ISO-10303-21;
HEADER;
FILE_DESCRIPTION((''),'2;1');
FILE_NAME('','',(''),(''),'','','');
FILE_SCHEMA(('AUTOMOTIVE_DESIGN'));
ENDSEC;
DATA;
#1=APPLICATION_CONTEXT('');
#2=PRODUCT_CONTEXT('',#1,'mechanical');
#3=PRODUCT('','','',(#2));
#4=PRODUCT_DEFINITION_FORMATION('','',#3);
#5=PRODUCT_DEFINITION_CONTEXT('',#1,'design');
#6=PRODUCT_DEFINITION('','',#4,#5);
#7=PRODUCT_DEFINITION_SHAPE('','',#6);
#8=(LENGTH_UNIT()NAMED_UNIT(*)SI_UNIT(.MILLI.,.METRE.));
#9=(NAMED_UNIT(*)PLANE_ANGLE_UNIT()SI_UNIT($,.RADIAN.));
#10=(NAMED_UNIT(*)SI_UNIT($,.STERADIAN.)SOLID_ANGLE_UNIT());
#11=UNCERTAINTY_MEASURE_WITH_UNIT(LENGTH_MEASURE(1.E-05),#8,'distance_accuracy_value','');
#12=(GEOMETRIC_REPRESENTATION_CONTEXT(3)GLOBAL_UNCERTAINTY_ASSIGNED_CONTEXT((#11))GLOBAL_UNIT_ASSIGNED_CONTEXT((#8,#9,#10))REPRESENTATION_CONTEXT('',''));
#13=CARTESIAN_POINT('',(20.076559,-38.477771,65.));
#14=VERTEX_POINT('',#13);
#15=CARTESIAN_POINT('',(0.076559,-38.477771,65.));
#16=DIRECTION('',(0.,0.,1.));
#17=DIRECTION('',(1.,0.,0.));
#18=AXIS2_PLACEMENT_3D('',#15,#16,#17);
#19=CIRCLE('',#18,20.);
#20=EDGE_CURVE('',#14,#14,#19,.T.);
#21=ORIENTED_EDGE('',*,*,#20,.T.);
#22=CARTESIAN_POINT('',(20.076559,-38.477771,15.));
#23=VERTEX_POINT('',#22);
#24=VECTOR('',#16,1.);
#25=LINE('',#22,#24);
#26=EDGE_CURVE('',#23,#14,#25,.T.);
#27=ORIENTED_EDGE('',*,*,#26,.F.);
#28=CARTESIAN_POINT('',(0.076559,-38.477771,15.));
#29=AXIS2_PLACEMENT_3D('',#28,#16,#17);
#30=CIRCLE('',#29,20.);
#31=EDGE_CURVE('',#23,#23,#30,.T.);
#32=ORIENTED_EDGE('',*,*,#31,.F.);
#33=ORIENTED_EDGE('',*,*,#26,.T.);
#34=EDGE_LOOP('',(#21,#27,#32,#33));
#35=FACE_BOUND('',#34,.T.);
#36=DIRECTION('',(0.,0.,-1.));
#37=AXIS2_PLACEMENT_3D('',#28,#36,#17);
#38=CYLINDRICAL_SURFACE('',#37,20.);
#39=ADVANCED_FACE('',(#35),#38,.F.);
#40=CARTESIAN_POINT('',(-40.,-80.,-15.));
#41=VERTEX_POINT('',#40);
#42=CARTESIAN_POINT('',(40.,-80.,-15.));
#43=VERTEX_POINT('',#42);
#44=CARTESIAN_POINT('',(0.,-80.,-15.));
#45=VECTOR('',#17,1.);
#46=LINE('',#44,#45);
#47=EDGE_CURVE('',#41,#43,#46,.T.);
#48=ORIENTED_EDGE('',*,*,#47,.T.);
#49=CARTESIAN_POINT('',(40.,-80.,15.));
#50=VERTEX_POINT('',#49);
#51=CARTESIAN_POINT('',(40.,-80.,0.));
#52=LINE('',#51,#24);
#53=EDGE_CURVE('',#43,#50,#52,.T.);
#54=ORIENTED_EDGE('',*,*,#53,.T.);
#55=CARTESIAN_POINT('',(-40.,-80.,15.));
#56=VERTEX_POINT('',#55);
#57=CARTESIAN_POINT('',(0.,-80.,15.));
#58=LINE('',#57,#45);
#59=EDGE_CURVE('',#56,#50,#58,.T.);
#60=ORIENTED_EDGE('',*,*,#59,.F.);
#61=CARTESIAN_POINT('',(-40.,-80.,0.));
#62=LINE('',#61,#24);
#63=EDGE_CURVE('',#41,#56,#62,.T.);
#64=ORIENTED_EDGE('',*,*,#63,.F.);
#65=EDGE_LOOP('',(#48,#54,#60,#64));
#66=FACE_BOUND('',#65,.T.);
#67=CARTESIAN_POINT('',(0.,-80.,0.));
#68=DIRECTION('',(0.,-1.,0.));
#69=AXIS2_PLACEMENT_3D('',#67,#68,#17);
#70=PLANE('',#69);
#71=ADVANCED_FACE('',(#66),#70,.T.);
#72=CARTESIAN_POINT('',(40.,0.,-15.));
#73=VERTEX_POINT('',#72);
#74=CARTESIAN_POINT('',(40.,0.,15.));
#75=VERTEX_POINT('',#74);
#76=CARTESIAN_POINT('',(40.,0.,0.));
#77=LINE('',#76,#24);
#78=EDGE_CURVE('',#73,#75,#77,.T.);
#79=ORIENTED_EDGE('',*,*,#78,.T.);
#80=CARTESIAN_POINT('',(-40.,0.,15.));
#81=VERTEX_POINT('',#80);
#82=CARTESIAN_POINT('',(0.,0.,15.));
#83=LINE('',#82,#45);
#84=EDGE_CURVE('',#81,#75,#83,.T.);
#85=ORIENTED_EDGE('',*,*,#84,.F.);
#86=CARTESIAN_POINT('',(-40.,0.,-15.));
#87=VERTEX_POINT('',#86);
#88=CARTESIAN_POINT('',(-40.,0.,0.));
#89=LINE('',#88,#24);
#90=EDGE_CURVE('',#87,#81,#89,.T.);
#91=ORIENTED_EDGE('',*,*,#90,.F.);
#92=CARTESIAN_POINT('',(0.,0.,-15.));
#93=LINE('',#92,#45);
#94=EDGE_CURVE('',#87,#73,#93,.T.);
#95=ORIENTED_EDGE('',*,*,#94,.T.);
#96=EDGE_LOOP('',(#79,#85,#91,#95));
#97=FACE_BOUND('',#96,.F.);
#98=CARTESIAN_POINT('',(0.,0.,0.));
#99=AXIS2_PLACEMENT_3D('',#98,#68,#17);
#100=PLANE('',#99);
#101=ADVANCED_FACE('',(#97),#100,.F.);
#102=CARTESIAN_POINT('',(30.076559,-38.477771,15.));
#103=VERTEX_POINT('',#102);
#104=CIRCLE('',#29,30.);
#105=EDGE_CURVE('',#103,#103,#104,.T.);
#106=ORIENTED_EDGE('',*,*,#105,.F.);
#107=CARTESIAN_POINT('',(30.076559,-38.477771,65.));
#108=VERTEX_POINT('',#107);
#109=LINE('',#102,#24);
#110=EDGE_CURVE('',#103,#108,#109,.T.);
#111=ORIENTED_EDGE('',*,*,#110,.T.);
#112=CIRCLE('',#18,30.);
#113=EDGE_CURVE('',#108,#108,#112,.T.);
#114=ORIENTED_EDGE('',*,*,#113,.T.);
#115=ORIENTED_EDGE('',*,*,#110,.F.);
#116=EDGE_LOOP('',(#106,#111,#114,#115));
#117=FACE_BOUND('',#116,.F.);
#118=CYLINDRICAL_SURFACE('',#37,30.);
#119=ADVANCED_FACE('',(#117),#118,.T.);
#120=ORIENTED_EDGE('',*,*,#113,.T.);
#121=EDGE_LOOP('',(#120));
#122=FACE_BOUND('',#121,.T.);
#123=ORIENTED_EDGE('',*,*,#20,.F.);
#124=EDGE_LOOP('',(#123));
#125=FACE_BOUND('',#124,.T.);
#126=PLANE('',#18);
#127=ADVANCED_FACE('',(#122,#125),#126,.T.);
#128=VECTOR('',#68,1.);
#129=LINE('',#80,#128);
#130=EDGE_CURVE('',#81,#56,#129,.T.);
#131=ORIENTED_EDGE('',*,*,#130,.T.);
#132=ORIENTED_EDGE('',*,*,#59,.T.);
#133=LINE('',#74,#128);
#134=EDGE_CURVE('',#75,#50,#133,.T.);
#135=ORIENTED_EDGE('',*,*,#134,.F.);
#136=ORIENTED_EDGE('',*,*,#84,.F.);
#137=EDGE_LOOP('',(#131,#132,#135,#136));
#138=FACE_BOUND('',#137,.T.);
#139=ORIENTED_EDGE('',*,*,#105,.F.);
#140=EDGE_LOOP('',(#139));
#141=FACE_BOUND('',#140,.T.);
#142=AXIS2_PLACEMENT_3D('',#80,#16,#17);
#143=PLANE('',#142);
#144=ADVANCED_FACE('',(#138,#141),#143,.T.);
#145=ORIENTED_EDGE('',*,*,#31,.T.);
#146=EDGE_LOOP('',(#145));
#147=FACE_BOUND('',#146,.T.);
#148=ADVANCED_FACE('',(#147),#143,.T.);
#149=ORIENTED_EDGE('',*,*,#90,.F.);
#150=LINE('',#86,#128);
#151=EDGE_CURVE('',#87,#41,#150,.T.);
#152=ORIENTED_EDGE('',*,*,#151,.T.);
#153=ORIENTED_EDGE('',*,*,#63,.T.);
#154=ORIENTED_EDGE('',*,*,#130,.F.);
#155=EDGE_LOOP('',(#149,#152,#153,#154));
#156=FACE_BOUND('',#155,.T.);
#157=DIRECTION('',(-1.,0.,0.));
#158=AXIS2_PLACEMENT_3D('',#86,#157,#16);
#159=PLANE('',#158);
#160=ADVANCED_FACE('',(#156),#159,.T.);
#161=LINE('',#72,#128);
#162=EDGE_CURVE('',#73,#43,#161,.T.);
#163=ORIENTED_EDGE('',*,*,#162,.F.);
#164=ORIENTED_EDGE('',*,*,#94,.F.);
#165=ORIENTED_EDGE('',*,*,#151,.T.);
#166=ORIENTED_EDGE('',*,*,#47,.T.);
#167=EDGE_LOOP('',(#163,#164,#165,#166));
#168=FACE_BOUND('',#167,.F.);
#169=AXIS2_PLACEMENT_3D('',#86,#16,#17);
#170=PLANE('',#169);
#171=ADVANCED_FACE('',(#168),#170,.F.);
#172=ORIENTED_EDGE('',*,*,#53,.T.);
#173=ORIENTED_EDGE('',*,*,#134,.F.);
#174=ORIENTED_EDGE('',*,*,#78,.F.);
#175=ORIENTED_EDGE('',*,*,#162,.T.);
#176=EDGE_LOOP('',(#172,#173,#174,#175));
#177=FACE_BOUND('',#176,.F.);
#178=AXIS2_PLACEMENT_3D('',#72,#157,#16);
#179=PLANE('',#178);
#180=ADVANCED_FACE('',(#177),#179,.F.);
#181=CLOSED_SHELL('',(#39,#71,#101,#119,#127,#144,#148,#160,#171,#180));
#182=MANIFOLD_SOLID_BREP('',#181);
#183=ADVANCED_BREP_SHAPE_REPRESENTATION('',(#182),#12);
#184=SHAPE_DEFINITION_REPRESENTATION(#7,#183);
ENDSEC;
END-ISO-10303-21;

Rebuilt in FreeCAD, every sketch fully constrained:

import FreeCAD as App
import Part
import Sketcher

V = App.Vector


def add_polygon(sketch, points):
    """Adds a closed chain of lines whose ends are joined by coincident constraints."""
    first, n = sketch.GeometryCount, len(points)
    for a, b in zip(points, points[1:] + points[:1]):
        sketch.addGeometry(Part.LineSegment(App.Vector(*a, 0), App.Vector(*b, 0)), False)
    for i in range(n):
        sketch.addConstraint(Sketcher.Constraint("Coincident", first + i, 2, first + (i + 1) % n, 1))

doc = App.newDocument("Part")
body = doc.addObject("PartDesign::Body", "Body")

sketch1 = body.newObject("Sketcher::SketchObject", "Sketch")
sketch1.AttachmentSupport = (doc.getObject("XZ_Plane"), [""])
sketch1.MapMode = "FlatFace"
add_polygon(sketch1, [(-40, 15), (-40, -15), (40, -15), (40, 15)])
sketch1.addConstraint(Sketcher.Constraint("Vertical", 0))
sketch1.addConstraint(Sketcher.Constraint("Horizontal", 1))
sketch1.addConstraint(Sketcher.Constraint("Vertical", 2))
sketch1.addConstraint(Sketcher.Constraint("Horizontal", 3))
sketch1.addConstraint(Sketcher.Constraint("Symmetric", 0, 2, 2, 2, -1, 1))
sketch1.addConstraint(Sketcher.Constraint("DistanceX", 1, 1, 1, 2, 80.0))
sketch1.addConstraint(Sketcher.Constraint("DistanceY", 0, 2, 0, 1, 30.0))
pad1 = body.newObject("PartDesign::Pad", "Pad")
pad1.Profile = sketch1
pad1.Length = 80

sketch2 = body.newObject("Sketcher::SketchObject", "Sketch001")
sketch2.AttachmentSupport = (doc.getObject("XY_Plane"), [""])
sketch2.MapMode = "FlatFace"
sketch2.AttachmentOffset = App.Placement(V(0, 0, 15), App.Rotation())
sketch2.addGeometry(Part.Circle(V(0, -38, 0), V(0, 0, 1), 30), False)
sketch2.addGeometry(Part.Circle(V(0, -38, 0), V(0, 0, 1), 20), False)
sketch2.addConstraint(Sketcher.Constraint("Coincident", 1, 3, 0, 3))
sketch2.addConstraint(Sketcher.Constraint("Diameter", 0, 60.0))
sketch2.addConstraint(Sketcher.Constraint("Diameter", 1, 40.0))
sketch2.addConstraint(Sketcher.Constraint("DistanceX", -1, 1, 0, 3, 0.076559))
sketch2.addConstraint(Sketcher.Constraint("DistanceY", 0, 3, -1, 1, 38.477771))
pad2 = body.newObject("PartDesign::Pad", "Pad001")
pad2.Profile = sketch2
pad2.Length = 50

doc.recompute()
